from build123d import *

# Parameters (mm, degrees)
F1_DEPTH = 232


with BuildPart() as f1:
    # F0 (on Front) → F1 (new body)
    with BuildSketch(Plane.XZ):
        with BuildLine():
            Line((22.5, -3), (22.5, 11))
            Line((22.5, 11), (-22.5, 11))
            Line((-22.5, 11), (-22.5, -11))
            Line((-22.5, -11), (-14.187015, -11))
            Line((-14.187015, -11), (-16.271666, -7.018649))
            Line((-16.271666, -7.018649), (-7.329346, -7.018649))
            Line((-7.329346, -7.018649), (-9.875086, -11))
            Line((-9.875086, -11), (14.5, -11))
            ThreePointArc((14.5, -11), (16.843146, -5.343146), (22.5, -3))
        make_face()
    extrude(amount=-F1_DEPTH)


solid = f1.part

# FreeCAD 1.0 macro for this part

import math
import FreeCAD as App
import Part
import Sketcher
from FreeCAD import Vector
Q = App.Units.Quantity

doc = App.newDocument("Part")
body = doc.addObject("PartDesign::Body", "Body")

# Sketch on XZ plane
sketch1 = body.newObject("Sketcher::SketchObject", "Sketch")
sketch1.AttachmentSupport = (doc.getObject("XZ_Plane"), [""])
sketch1.MapMode = "FlatFace"
sketch1.addGeometry([
    Part.LineSegment(Vector(22.5, -3, 0), Vector(22.5, 11, 0)),  # 0
    Part.LineSegment(Vector(22.5, 11, 0), Vector(-22.5, 11, 0)),  # 1
    Part.LineSegment(Vector(-22.5, 11, 0), Vector(-22.5, -11, 0)),  # 2
    Part.LineSegment(Vector(-22.5, -11, 0), Vector(-14.2, -11, 0)),  # 3
    Part.LineSegment(Vector(-14.2, -11, 0), Vector(-16.3, -7, 0)),  # 4
    Part.LineSegment(Vector(-16.3, -7, 0), Vector(-7.3, -7, 0)),  # 5
    Part.LineSegment(Vector(-7.3, -7, 0), Vector(-9.9, -11, 0)),  # 6
    Part.LineSegment(Vector(-9.9, -11, 0), Vector(14.5, -11, 0)),  # 7
    Part.ArcOfCircle(Part.Circle(Vector(22.5, -11, 0), Vector(0, 0, 1), 8), math.radians(90), math.radians(180)),  # 8
], False)
sketch1.addConstraint([
    Sketcher.Constraint("Coincident", 0, 2, 1, 1),
    Sketcher.Constraint("Coincident", 1, 2, 2, 1),
    Sketcher.Constraint("Coincident", 2, 2, 3, 1),
    Sketcher.Constraint("Coincident", 3, 2, 4, 1),
    Sketcher.Constraint("Coincident", 4, 2, 5, 1),
    Sketcher.Constraint("Coincident", 5, 2, 6, 1),
    Sketcher.Constraint("Coincident", 6, 2, 7, 1),
    Sketcher.Constraint("Coincident", 7, 2, 8, 2),
    Sketcher.Constraint("Coincident", 8, 1, 0, 1),
    Sketcher.Constraint("Vertical", 0),
    Sketcher.Constraint("Horizontal", 1),
    Sketcher.Constraint("Vertical", 2),
    Sketcher.Constraint("Horizontal", 3),
    Sketcher.Constraint("Horizontal", 5),
    Sketcher.Constraint("Horizontal", 7),
    Sketcher.Constraint("Symmetric", 0, 2, 2, 2, -1, 1),
    Sketcher.Constraint("Horizontal", 8, 3, 2, 2),
    Sketcher.Constraint("Horizontal", 3, 2, 6, 2),
    Sketcher.Constraint("Vertical", 8, 3, 0, 2),
    Sketcher.Constraint("Radius", 8, Q("8.000001 mm")),
    Sketcher.Constraint("DistanceX", 1, 2, 1, 1, Q("45 mm")),
    Sketcher.Constraint("DistanceY", 0, 1, 0, 2, Q("14 mm")),
    Sketcher.Constraint("Distance", 4, Q("4.494099 mm")),
    Sketcher.Constraint("DistanceX", 5, 1, 5, 2, Q("8.94232 mm")),
    Sketcher.Constraint("Distance", 6, Q("4.725669 mm")),
    Sketcher.Constraint("DistanceX", 3, 1, 3, 2, Q("8.312985 mm")),
    Sketcher.Constraint("DistanceX", 7, 1, 7, 2, Q("24.375086 mm")),
])
pad1 = body.newObject("PartDesign::Pad", "Pad")
pad1.Profile = sketch1
pad1.Length = 232
pad1.Reversed = True

doc.recompute()
